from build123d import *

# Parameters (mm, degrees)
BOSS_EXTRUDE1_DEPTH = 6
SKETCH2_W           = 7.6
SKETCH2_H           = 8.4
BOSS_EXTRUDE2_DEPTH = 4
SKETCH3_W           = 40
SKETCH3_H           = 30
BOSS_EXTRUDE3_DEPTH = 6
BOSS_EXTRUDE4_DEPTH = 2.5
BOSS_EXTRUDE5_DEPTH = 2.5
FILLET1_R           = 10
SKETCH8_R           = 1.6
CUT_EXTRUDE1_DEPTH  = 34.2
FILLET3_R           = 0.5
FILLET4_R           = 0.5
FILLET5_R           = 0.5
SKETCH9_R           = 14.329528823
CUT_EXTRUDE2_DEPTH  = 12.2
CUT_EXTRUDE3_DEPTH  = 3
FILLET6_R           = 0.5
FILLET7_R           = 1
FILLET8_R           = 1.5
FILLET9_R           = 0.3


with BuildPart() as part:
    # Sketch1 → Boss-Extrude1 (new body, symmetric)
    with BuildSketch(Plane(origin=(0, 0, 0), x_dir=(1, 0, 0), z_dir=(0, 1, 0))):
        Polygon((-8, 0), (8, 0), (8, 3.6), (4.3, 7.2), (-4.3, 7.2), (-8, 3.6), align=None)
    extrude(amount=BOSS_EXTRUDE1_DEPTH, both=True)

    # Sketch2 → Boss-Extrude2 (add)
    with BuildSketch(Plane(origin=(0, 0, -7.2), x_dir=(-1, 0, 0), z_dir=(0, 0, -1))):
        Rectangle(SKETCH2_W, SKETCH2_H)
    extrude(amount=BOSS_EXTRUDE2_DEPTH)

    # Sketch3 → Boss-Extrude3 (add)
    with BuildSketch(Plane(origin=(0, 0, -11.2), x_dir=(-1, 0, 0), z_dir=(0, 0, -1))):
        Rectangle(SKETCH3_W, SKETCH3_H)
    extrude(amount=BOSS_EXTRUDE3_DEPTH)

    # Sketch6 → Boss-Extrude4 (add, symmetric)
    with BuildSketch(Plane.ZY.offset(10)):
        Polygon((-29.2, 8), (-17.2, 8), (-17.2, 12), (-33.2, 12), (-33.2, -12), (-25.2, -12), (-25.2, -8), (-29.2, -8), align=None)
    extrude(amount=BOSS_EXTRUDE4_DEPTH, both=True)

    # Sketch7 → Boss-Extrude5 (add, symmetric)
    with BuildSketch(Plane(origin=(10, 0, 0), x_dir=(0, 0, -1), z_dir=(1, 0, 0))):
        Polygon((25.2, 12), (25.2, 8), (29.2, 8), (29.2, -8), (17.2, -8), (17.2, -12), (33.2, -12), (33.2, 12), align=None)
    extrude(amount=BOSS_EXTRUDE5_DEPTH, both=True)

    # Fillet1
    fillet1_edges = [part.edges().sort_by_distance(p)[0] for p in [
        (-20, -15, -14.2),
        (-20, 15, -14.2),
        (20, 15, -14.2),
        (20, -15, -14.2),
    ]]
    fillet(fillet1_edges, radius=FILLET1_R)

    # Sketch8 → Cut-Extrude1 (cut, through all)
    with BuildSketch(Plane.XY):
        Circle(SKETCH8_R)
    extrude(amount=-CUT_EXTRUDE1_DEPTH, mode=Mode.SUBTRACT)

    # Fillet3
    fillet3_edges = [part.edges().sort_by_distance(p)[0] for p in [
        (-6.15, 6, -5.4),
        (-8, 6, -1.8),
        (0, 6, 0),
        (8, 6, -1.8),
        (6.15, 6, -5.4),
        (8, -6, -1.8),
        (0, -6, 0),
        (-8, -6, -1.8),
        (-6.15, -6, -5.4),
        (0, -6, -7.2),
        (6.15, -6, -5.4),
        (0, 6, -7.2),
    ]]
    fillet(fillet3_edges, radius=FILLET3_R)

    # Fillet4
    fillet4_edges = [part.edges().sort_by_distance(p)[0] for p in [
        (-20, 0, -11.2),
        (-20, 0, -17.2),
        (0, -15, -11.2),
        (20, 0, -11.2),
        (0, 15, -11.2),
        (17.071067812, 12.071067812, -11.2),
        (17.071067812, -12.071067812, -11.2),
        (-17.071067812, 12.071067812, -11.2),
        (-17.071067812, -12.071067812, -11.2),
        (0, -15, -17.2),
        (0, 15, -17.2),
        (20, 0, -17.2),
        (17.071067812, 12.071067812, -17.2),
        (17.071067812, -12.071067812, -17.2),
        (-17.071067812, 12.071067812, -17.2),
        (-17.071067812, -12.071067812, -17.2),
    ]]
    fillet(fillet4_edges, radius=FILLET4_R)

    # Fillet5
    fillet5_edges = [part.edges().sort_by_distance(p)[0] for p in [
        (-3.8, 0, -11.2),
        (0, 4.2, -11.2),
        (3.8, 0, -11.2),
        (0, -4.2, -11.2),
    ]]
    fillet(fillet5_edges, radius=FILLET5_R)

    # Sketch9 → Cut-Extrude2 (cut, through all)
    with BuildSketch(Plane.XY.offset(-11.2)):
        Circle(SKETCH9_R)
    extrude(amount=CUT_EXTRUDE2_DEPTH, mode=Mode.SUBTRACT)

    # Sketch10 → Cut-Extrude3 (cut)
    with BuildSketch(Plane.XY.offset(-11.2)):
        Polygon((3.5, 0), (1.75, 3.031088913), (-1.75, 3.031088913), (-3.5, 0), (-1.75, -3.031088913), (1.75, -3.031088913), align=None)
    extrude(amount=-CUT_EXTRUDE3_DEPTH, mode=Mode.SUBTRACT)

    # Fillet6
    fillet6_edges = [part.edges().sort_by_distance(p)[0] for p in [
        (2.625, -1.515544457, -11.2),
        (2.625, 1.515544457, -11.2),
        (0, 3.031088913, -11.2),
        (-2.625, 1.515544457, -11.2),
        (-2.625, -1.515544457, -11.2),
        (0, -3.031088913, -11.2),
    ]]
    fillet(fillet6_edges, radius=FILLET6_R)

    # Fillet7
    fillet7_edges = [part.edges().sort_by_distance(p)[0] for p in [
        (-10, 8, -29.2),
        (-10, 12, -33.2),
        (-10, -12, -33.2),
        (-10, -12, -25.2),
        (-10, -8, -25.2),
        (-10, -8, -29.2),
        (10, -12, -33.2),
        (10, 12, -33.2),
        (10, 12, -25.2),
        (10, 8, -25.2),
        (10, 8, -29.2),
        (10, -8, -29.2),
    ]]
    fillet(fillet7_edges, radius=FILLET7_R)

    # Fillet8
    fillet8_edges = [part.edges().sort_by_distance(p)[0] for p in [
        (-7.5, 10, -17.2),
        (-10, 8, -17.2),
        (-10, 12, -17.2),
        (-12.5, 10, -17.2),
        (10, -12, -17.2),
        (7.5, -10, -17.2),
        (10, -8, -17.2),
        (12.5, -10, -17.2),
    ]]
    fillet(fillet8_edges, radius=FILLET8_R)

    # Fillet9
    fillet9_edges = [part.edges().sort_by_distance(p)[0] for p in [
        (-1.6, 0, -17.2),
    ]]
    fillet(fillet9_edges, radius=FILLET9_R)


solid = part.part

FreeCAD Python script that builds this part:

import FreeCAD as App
import Part
import Sketcher
Q = App.Units.Quantity


def edges_at(feature, points):
    """Names of the edges that pass closest to the given points."""
    edges = feature.Shape.Edges
    near = lambda p: min(range(len(edges)), key=lambda i: edges[i].distToShape(Part.Vertex(*p))[0])
    return sorted({f"Edge{near(p) + 1}" for p in points})

doc = App.newDocument("Part")
body = doc.addObject("PartDesign::Body", "Body")

# Sketch on XZ plane
sketch1 = body.newObject("Sketcher::SketchObject", "Sketch")
sketch1.AttachmentSupport = (doc.getObject("XZ_Plane"), [""])
sketch1.MapMode = "FlatFace"
sketch1.addGeometry(Part.LineSegment(App.Vector(-8, 0, 0), App.Vector(8, 0, 0)), False)
sketch1.addGeometry(Part.LineSegment(App.Vector(8, 0, 0), App.Vector(8, -3.6, 0)), False)
sketch1.addGeometry(Part.LineSegment(App.Vector(8, -3.6, 0), App.Vector(4.3, -7.2, 0)), False)
sketch1.addGeometry(Part.LineSegment(App.Vector(4.3, -7.2, 0), App.Vector(-4.3, -7.2, 0)), False)
sketch1.addGeometry(Part.LineSegment(App.Vector(-4.3, -7.2, 0), App.Vector(-8, -3.6, 0)), False)
sketch1.addGeometry(Part.LineSegment(App.Vector(-8, -3.6, 0), App.Vector(-8, 0, 0)), False)
sketch1.addConstraint(Sketcher.Constraint("Coincident", 0, 2, 1, 1))
sketch1.addConstraint(Sketcher.Constraint("Coincident", 1, 2, 2, 1))
sketch1.addConstraint(Sketcher.Constraint("Coincident", 2, 2, 3, 1))
sketch1.addConstraint(Sketcher.Constraint("Coincident", 3, 2, 4, 1))
sketch1.addConstraint(Sketcher.Constraint("Coincident", 4, 2, 5, 1))
sketch1.addConstraint(Sketcher.Constraint("Coincident", 5, 2, 0, 1))
sketch1.addConstraint(Sketcher.Constraint("Horizontal", 0))
sketch1.addConstraint(Sketcher.Constraint("Vertical", 1))
sketch1.addConstraint(Sketcher.Constraint("Horizontal", 3))
sketch1.addConstraint(Sketcher.Constraint("Vertical", 5))
sketch1.addConstraint(Sketcher.Constraint("Symmetric", 0, 2, 5, 2, -1, 1))
sketch1.addConstraint(Sketcher.Constraint("Horizontal", 1, 2, 4, 2))
sketch1.addConstraint(Sketcher.Constraint("Equal", 2, 4))
sketch1.addConstraint(Sketcher.Constraint("DistanceX", 0, 1, 0, 2, 16.0))
sketch1.addConstraint(Sketcher.Constraint("DistanceX", 3, 2, 3, 1, 8.6))
sketch1.addConstraint(Sketcher.Constraint("DistanceY", 1, 2, 1, 1, 3.6))
sketch1.addConstraint(Sketcher.Constraint("DistanceY", 2, 2, -1, 1, 7.2))
pad1 = body.newObject("PartDesign::Pad", "Pad")
pad1.Profile = sketch1
pad1.Length = 12
pad1.Midplane = True

# Sketch on XY plane
sketch2 = body.newObject("Sketcher::SketchObject", "Sketch001")
sketch2.AttachmentSupport = (doc.getObject("XY_Plane"), [""])
sketch2.MapMode = "FlatFace"
sketch2.AttachmentOffset = App.Placement(App.Vector(0, 0, -7.2), App.Rotation())
sketch2.addGeometry(Part.LineSegment(App.Vector(3.8, 4.2, 0), App.Vector(3.8, -4.2, 0)), False)
sketch2.addGeometry(Part.LineSegment(App.Vector(3.8, -4.2, 0), App.Vector(-3.8, -4.2, 0)), False)
sketch2.addGeometry(Part.LineSegment(App.Vector(-3.8, -4.2, 0), App.Vector(-3.8, 4.2, 0)), False)
sketch2.addGeometry(Part.LineSegment(App.Vector(-3.8, 4.2, 0), App.Vector(3.8, 4.2, 0)), False)
sketch2.addConstraint(Sketcher.Constraint("Coincident", 0, 2, 1, 1))
sketch2.addConstraint(Sketcher.Constraint("Coincident", 1, 2, 2, 1))
sketch2.addConstraint(Sketcher.Constraint("Coincident", 2, 2, 3, 1))
sketch2.addConstraint(Sketcher.Constraint("Coincident", 3, 2, 0, 1))
sketch2.addConstraint(Sketcher.Constraint("Vertical", 0))
sketch2.addConstraint(Sketcher.Constraint("Horizontal", 1))
sketch2.addConstraint(Sketcher.Constraint("Vertical", 2))
sketch2.addConstraint(Sketcher.Constraint("Horizontal", 3))
sketch2.addConstraint(Sketcher.Constraint("Symmetric", 0, 2, 2, 2, -1, 1))
sketch2.addConstraint(Sketcher.Constraint("DistanceX", 1, 2, 1, 1, 7.6))
sketch2.addConstraint(Sketcher.Constraint("DistanceY", 0, 2, 0, 1, 8.4))
pad2 = body.newObject("PartDesign::Pad", "Pad001")
pad2.Profile = sketch2
pad2.Length = 4
pad2.Reversed = True

# Sketch on XY plane
sketch3 = body.newObject("Sketcher::SketchObject", "Sketch002")
sketch3.AttachmentSupport = (doc.getObject("XY_Plane"), [""])
sketch3.MapMode = "FlatFace"
sketch3.AttachmentOffset = App.Placement(App.Vector(0, 0, -11.2), App.Rotation())
sketch3.addGeometry(Part.LineSegment(App.Vector(20, 15, 0), App.Vector(20, -15, 0)), False)
sketch3.addGeometry(Part.LineSegment(App.Vector(20, -15, 0), App.Vector(-20, -15, 0)), False)
sketch3.addGeometry(Part.LineSegment(App.Vector(-20, -15, 0), App.Vector(-20, 15, 0)), False)
sketch3.addGeometry(Part.LineSegment(App.Vector(-20, 15, 0), App.Vector(20, 15, 0)), False)
sketch3.addConstraint(Sketcher.Constraint("Coincident", 0, 2, 1, 1))
sketch3.addConstraint(Sketcher.Constraint("Coincident", 1, 2, 2, 1))
sketch3.addConstraint(Sketcher.Constraint("Coincident", 2, 2, 3, 1))
sketch3.addConstraint(Sketcher.Constraint("Coincident", 3, 2, 0, 1))
sketch3.addConstraint(Sketcher.Constraint("Vertical", 0))
sketch3.addConstraint(Sketcher.Constraint("Horizontal", 1))
sketch3.addConstraint(Sketcher.Constraint("Vertical", 2))
sketch3.addConstraint(Sketcher.Constraint("Horizontal", 3))
sketch3.addConstraint(Sketcher.Constraint("Symmetric", 0, 2, 2, 2, -1, 1))
sketch3.addConstraint(Sketcher.Constraint("DistanceX", 1, 2, 1, 1, 40.0))
sketch3.addConstraint(Sketcher.Constraint("DistanceY", 0, 2, 0, 1, 30.0))
pad3 = body.newObject("PartDesign::Pad", "Pad002")
pad3.Profile = sketch3
pad3.Length = 6
pad3.Reversed = True

# Sketch on YZ plane
sketch4 = body.newObject("Sketcher::SketchObject", "Sketch003")
sketch4.AttachmentSupport = (doc.getObject("YZ_Plane"), [""])
sketch4.MapMode = "FlatFace"
sketch4.AttachmentOffset = App.Placement(App.Vector(0, 0, -10), App.Rotation())
sketch4.addGeometry(Part.LineSegment(App.Vector(8, -29.2, 0), App.Vector(8, -17.2, 0)), False)
sketch4.addGeometry(Part.LineSegment(App.Vector(8, -17.2, 0), App.Vector(12, -17.2, 0)), False)
sketch4.addGeometry(Part.LineSegment(App.Vector(12, -17.2, 0), App.Vector(12, -33.2, 0)), False)
sketch4.addGeometry(Part.LineSegment(App.Vector(12, -33.2, 0), App.Vector(-12, -33.2, 0)), False)
sketch4.addGeometry(Part.LineSegment(App.Vector(-12, -33.2, 0), App.Vector(-12, -25.2, 0)), False)
sketch4.addGeometry(Part.LineSegment(App.Vector(-12, -25.2, 0), App.Vector(-8, -25.2, 0)), False)
sketch4.addGeometry(Part.LineSegment(App.Vector(-8, -25.2, 0), App.Vector(-8, -29.2, 0)), False)
sketch4.addGeometry(Part.LineSegment(App.Vector(-8, -29.2, 0), App.Vector(8, -29.2, 0)), False)
sketch4.addConstraint(Sketcher.Constraint("Coincident", 0, 2, 1, 1))
sketch4.addConstraint(Sketcher.Constraint("Coincident", 1, 2, 2, 1))
sketch4.addConstraint(Sketcher.Constraint("Coincident", 2, 2, 3, 1))
sketch4.addConstraint(Sketcher.Constraint("Coincident", 3, 2, 4, 1))
sketch4.addConstraint(Sketcher.Constraint("Coincident", 4, 2, 5, 1))
sketch4.addConstraint(Sketcher.Constraint("Coincident", 5, 2, 6, 1))
sketch4.addConstraint(Sketcher.Constraint("Coincident", 6, 2, 7, 1))
sketch4.addConstraint(Sketcher.Constraint("Coincident", 7, 2, 0, 1))
sketch4.addConstraint(Sketcher.Constraint("Vertical", 0))
sketch4.addConstraint(Sketcher.Constraint("Horizontal", 1))
sketch4.addConstraint(Sketcher.Constraint("Vertical", 2))
sketch4.addConstraint(Sketcher.Constraint("Horizontal", 3))
sketch4.addConstraint(Sketcher.Constraint("Vertical", 4))
sketch4.addConstraint(Sketcher.Constraint("Horizontal", 5))
sketch4.addConstraint(Sketcher.Constraint("Vertical", 6))
sketch4.addConstraint(Sketcher.Constraint("Horizontal", 7))
sketch4.addConstraint(Sketcher.Constraint("Equal", 1, 5))
sketch4.addConstraint(Sketcher.Constraint("Equal", 7, 2))
sketch4.addConstraint(Sketcher.Constraint("Equal", 5, 6))
sketch4.addConstraint(Sketcher.Constraint("DistanceX", 1, 1, 1, 2, 4.0))
sketch4.addConstraint(Sketcher.Constraint("DistanceX", 3, 2, 3, 1, 24.0))
sketch4.addConstraint(Sketcher.Constraint("DistanceY", 0, 1, 0, 2, 12.0))
sketch4.addConstraint(Sketcher.Constraint("DistanceX", -1, 1, 0, 2, 8.0))
sketch4.addConstraint(Sketcher.Constraint("DistanceY", 0, 2, -1, 1, 17.2))
pad4 = body.newObject("PartDesign::Pad", "Pad003")
pad4.Profile = sketch4
pad4.Length = 5
pad4.Midplane = True

# Sketch on YZ plane
sketch5 = body.newObject("Sketcher::SketchObject", "Sketch004")
sketch5.AttachmentSupport = (doc.getObject("YZ_Plane"), [""])
sketch5.MapMode = "FlatFace"
sketch5.AttachmentOffset = App.Placement(App.Vector(0, 0, 10), App.Rotation())
sketch5.addGeometry(Part.LineSegment(App.Vector(12, -25.2, 0), App.Vector(8, -25.2, 0)), False)
sketch5.addGeometry(Part.LineSegment(App.Vector(8, -25.2, 0), App.Vector(8, -29.2, 0)), False)
sketch5.addGeometry(Part.LineSegment(App.Vector(8, -29.2, 0), App.Vector(-8, -29.2, 0)), False)
sketch5.addGeometry(Part.LineSegment(App.Vector(-8, -29.2, 0), App.Vector(-8, -17.2, 0)), False)
sketch5.addGeometry(Part.LineSegment(App.Vector(-8, -17.2, 0), App.Vector(-12, -17.2, 0)), False)
sketch5.addGeometry(Part.LineSegment(App.Vector(-12, -17.2, 0), App.Vector(-12, -33.2, 0)), False)
sketch5.addGeometry(Part.LineSegment(App.Vector(-12, -33.2, 0), App.Vector(12, -33.2, 0)), False)
sketch5.addGeometry(Part.LineSegment(App.Vector(12, -33.2, 0), App.Vector(12, -25.2, 0)), False)
sketch5.addConstraint(Sketcher.Constraint("Coincident", 0, 2, 1, 1))
sketch5.addConstraint(Sketcher.Constraint("Coincident", 1, 2, 2, 1))
sketch5.addConstraint(Sketcher.Constraint("Coincident", 2, 2, 3, 1))
sketch5.addConstraint(Sketcher.Constraint("Coincident", 3, 2, 4, 1))
sketch5.addConstraint(Sketcher.Constraint("Coincident", 4, 2, 5, 1))
sketch5.addConstraint(Sketcher.Constraint("Coincident", 5, 2, 6, 1))
sketch5.addConstraint(Sketcher.Constraint("Coincident", 6, 2, 7, 1))
sketch5.addConstraint(Sketcher.Constraint("Coincident", 7, 2, 0, 1))
sketch5.addConstraint(Sketcher.Constraint("Horizontal", 0))
sketch5.addConstraint(Sketcher.Constraint("Vertical", 1))
sketch5.addConstraint(Sketcher.Constraint("Horizontal", 2))
sketch5.addConstraint(Sketcher.Constraint("Vertical", 3))
sketch5.addConstraint(Sketcher.Constraint("Horizontal", 4))
sketch5.addConstraint(Sketcher.Constraint("Vertical", 5))
sketch5.addConstraint(Sketcher.Constraint("Horizontal", 6))
sketch5.addConstraint(Sketcher.Constraint("Vertical", 7))
sketch5.addConstraint(Sketcher.Constraint("Equal", 0, 4))
sketch5.addConstraint(Sketcher.Constraint("Equal", 4, 1))
sketch5.addConstraint(Sketcher.Constraint("Equal", 2, 5))
sketch5.addConstraint(Sketcher.Constraint("DistanceX", 0, 2, 0, 1, 4.0))
sketch5.addConstraint(Sketcher.Constraint("DistanceX", 2, 2, 2, 1, 16.0))
sketch5.addConstraint(Sketcher.Constraint("DistanceY", 3, 1, 3, 2, 12.0))
sketch5.addConstraint(Sketcher.Constraint("DistanceX", -1, 1, 0, 2, 8.0))
sketch5.addConstraint(Sketcher.Constraint("DistanceY", 0, 2, -1, 1, 25.2))
pad5 = body.newObject("PartDesign::Pad", "Pad004")
pad5.Profile = sketch5
pad5.Length = 5
pad5.Midplane = True
doc.recompute()

fillet = body.newObject("PartDesign::Fillet", "Fillet")
fillet.Base = (pad5, edges_at(pad5, [
    (-20, -15, -14.2),
    (-20, 15, -14.2),
    (20, 15, -14.2),
    (20, -15, -14.2),
]))
fillet.Radius = 10

# Sketch on XY plane
sketch6 = body.newObject("Sketcher::SketchObject", "Sketch005")
sketch6.AttachmentSupport = (doc.getObject("XY_Plane"), [""])
sketch6.MapMode = "FlatFace"
sketch6.addGeometry(Part.Circle(App.Vector(0, 0, 0), App.Vector(0, 0, 1), 1.6), False)
sketch6.addConstraint(Sketcher.Constraint("Coincident", 0, 3, -1, 1))
sketch6.addConstraint(Sketcher.Constraint("Diameter", 0, 3.2))
pocket1 = body.newObject("PartDesign::Pocket", "Pocket")
pocket1.Profile = sketch6
pocket1.Type = "ThroughAll"
doc.recompute()

fillet2 = body.newObject("PartDesign::Fillet", "Fillet001")
fillet2.Base = (pocket1, edges_at(pocket1, [
    (-6.15, 6, -5.4),
    (-8, 6, -1.8),
    (0, 6, 0),
    (8, 6, -1.8),
    (6.15, 6, -5.4),
    (8, -6, -1.8),
    (0, -6, 0),
    (-8, -6, -1.8),
    (-6.15, -6, -5.4),
    (0, -6, -7.2),
    (6.15, -6, -5.4),
    (0, 6, -7.2),
]))
fillet2.Radius = 0.5
doc.recompute()

fillet3 = body.newObject("PartDesign::Fillet", "Fillet002")
fillet3.Base = (fillet2, edges_at(fillet2, [
    (-20, 0, -11.2),
    (-20, 0, -17.2),
    (0, -15, -11.2),
    (20, 0, -11.2),
    (0, 15, -11.2),
    (17.071, 12.071, -11.2),
    (17.071, -12.071, -11.2),
    (-17.071, 12.071, -11.2),
    (-17.071, -12.071, -11.2),
    (0, -15, -17.2),
    (0, 15, -17.2),
    (20, 0, -17.2),
    (17.071, 12.071, -17.2),
    (17.071, -12.071, -17.2),
    (-17.071, 12.071, -17.2),
    (-17.071, -12.071, -17.2),
]))
fillet3.Radius = 0.5
doc.recompute()

fillet4 = body.newObject("PartDesign::Fillet", "Fillet003")
fillet4.Base = (fillet3, edges_at(fillet3, [
    (-3.8, 0, -11.2),
    (0, 4.2, -11.2),
    (3.8, 0, -11.2),
    (0, -4.2, -11.2),
]))
fillet4.Radius = 0.5

# Sketch on XY plane
sketch7 = body.newObject("Sketcher::SketchObject", "Sketch006")
sketch7.AttachmentSupport = (doc.getObject("XY_Plane"), [""])
sketch7.MapMode = "FlatFace"
sketch7.AttachmentOffset = App.Placement(App.Vector(0, 0, -11.2), App.Rotation())
sketch7.addGeometry(Part.Circle(App.Vector(0, 0, 0), App.Vector(0, 0, 1), 14.329529), False)
sketch7.addConstraint(Sketcher.Constraint("Coincident", 0, 3, -1, 1))
sketch7.addConstraint(Sketcher.Constraint("Diameter", 0, 28.659058))
pocket2 = body.newObject("PartDesign::Pocket", "Pocket001")
pocket2.Profile = sketch7
pocket2.Type = "ThroughAll"
pocket2.Reversed = True

# Sketch on XY plane
sketch8 = body.newObject("Sketcher::SketchObject", "Sketch007")
sketch8.AttachmentSupport = (doc.getObject("XY_Plane"), [""])
sketch8.MapMode = "FlatFace"
sketch8.AttachmentOffset = App.Placement(App.Vector(0, 0, -11.2), App.Rotation())
sketch8.addGeometry(Part.LineSegment(App.Vector(3.5, 0, 0), App.Vector(1.75, 3.031089, 0)), False)
sketch8.addGeometry(Part.LineSegment(App.Vector(1.75, 3.031089, 0), App.Vector(-1.75, 3.031089, 0)), False)
sketch8.addGeometry(Part.LineSegment(App.Vector(-1.75, 3.031089, 0), App.Vector(-3.5, 0, 0)), False)
sketch8.addGeometry(Part.LineSegment(App.Vector(-3.5, 0, 0), App.Vector(-1.75, -3.031089, 0)), False)
sketch8.addGeometry(Part.LineSegment(App.Vector(-1.75, -3.031089, 0), App.Vector(1.75, -3.031089, 0)), False)
sketch8.addGeometry(Part.LineSegment(App.Vector(1.75, -3.031089, 0), App.Vector(3.5, 0, 0)), False)
sketch8.addConstraint(Sketcher.Constraint("Coincident", 0, 2, 1, 1))
sketch8.addConstraint(Sketcher.Constraint("Coincident", 1, 2, 2, 1))
sketch8.addConstraint(Sketcher.Constraint("Coincident", 2, 2, 3, 1))
sketch8.addConstraint(Sketcher.Constraint("Coincident", 3, 2, 4, 1))
sketch8.addConstraint(Sketcher.Constraint("Coincident", 4, 2, 5, 1))
sketch8.addConstraint(Sketcher.Constraint("Coincident", 5, 2, 0, 1))
sketch8.addConstraint(Sketcher.Constraint("Horizontal", 1))
sketch8.addConstraint(Sketcher.Constraint("Horizontal", 4))
sketch8.addConstraint(Sketcher.Constraint("Symmetric", 0, 2, 3, 2, -1, 1))
sketch8.addConstraint(Sketcher.Constraint("Symmetric", 2, 2, 5, 2, -1, 1))
sketch8.addConstraint(Sketcher.Constraint("PointOnObject", 2, 2, -1))
sketch8.addConstraint(Sketcher.Constraint("Parallel", 2, 5))
sketch8.addConstraint(Sketcher.Constraint("Vertical", 1, 2, 3, 2))
sketch8.addConstraint(Sketcher.Constraint("Angle", 0, Q("120 deg")))
sketch8.addConstraint(Sketcher.Constraint("DistanceX", 1, 2, 1, 1, 3.5))
sketch8.addConstraint(Sketcher.Constraint("DistanceX", 2, 2, 5, 2, 7.0))
pocket3 = body.newObject("PartDesign::Pocket", "Pocket002")
pocket3.Profile = sketch8
pocket3.Length = 3
doc.recompute()

fillet5 = body.newObject("PartDesign::Fillet", "Fillet004")
fillet5.Base = (pocket3, edges_at(pocket3, [
    (2.625, -1.516, -11.2),
    (2.625, 1.516, -11.2),
    (0, 3.031, -11.2),
    (-2.625, 1.516, -11.2),
    (-2.625, -1.516, -11.2),
    (0, -3.031, -11.2),
]))
fillet5.Radius = 0.5
doc.recompute()

fillet6 = body.newObject("PartDesign::Fillet", "Fillet005")
fillet6.Base = (fillet5, edges_at(fillet5, [
    (-10, 8, -29.2),
    (-10, 12, -33.2),
    (-10, -12, -33.2),
    (-10, -12, -25.2),
    (-10, -8, -25.2),
    (-10, -8, -29.2),
    (10, -12, -33.2),
    (10, 12, -33.2),
    (10, 12, -25.2),
    (10, 8, -25.2),
    (10, 8, -29.2),
    (10, -8, -29.2),
]))
fillet6.Radius = 1
doc.recompute()

fillet7 = body.newObject("PartDesign::Fillet", "Fillet006")
fillet7.Base = (fillet6, edges_at(fillet6, [
    (-7.5, 10, -17.2),
    (-10, 8, -17.2),
    (-10, 12, -17.2),
    (-12.5, 10, -17.2),
    (10, -12, -17.2),
    (7.5, -10, -17.2),
    (10, -8, -17.2),
    (12.5, -10, -17.2),
]))
fillet7.Radius = 1.5
doc.recompute()

fillet8 = body.newObject("PartDesign::Fillet", "Fillet007")
fillet8.Base = (fillet7, edges_at(fillet7, [(-1.6, 0, -17.2)]))
fillet8.Radius = 0.3

doc.recompute()
